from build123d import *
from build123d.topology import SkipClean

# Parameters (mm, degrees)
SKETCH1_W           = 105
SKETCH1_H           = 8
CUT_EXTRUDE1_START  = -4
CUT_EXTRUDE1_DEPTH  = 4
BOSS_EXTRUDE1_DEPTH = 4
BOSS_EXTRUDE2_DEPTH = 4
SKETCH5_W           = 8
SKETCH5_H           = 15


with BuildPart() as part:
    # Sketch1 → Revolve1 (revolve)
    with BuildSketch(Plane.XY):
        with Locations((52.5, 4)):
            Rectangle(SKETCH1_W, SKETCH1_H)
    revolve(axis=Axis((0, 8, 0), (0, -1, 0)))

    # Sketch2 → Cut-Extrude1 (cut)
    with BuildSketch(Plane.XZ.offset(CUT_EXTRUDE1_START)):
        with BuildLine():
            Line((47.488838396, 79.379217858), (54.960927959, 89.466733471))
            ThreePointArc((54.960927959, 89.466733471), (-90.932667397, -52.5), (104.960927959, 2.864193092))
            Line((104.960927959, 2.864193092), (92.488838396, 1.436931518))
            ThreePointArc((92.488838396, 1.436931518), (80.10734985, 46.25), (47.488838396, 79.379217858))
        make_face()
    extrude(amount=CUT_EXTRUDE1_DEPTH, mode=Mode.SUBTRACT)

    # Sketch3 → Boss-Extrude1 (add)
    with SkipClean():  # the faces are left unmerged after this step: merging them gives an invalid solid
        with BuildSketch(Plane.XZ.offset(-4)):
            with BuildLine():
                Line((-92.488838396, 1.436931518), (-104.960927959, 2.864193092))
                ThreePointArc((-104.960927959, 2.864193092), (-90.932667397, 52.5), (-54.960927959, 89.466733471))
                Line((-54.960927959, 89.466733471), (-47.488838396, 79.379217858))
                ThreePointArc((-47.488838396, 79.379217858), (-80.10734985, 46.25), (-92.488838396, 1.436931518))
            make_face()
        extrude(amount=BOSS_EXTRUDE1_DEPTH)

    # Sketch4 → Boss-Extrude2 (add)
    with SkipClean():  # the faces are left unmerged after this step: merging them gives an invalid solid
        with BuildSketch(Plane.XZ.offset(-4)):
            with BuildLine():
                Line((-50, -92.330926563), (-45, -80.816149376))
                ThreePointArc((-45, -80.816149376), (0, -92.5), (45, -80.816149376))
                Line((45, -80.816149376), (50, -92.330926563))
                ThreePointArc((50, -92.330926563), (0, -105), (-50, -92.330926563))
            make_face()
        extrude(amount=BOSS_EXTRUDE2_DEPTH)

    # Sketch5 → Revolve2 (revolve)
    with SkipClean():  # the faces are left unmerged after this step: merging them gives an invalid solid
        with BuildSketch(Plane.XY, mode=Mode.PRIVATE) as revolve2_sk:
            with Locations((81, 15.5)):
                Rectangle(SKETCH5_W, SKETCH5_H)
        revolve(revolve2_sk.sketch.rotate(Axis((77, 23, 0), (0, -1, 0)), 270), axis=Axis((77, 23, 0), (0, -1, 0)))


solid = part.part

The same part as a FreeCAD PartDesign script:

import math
import FreeCAD as App
import Part
import Sketcher
from FreeCAD import Vector
Q = App.Units.Quantity

doc = App.newDocument("Part")
body = doc.addObject("PartDesign::Body", "Body")

# Sketch on XY plane
sketch1 = doc.addObject("Sketcher::SketchObject", "Sketch")
body.addObject(sketch1)
sketch1.AttachmentSupport = (doc.XY_Plane, [""])
sketch1.MapMode = "FlatFace"
sketch1.addGeometry([
    Part.LineSegment(Vector(0, 8, 0), Vector(0, 0, 0)),
    Part.LineSegment(Vector(0, 0, 0), Vector(105, 0, 0)),
    Part.LineSegment(Vector(105, 0, 0), Vector(105, 8, 0)),
    Part.LineSegment(Vector(105, 8, 0), Vector(0, 8, 0)),
], False)
sketch1.addConstraint([
    Sketcher.Constraint("Coincident", 0, 2, 1, 1),
    Sketcher.Constraint("Coincident", 1, 2, 2, 1),
    Sketcher.Constraint("Coincident", 2, 2, 3, 1),
    Sketcher.Constraint("Coincident", 3, 2, 0, 1),
    Sketcher.Constraint("Vertical", 0),
    Sketcher.Constraint("Horizontal", 1),
    Sketcher.Constraint("Vertical", 2),
    Sketcher.Constraint("Horizontal", 3),
    Sketcher.Constraint("Coincident", 0, 2, -1, 1),
    Sketcher.Constraint("DistanceX", 1, 1, 1, 2, Q("105 mm")),
    Sketcher.Constraint("DistanceY", 0, 2, 0, 1, Q("8 mm")),
])
revolution = doc.addObject("PartDesign::Revolution", "Revolution")
body.addObject(revolution)
revolution.Profile = sketch1
revolution.ReferenceAxis = (sketch1, ["V_Axis"])
revolution.Angle = 360

# Sketch on XZ plane
sketch2 = doc.addObject("Sketcher::SketchObject", "Sketch001")
body.addObject(sketch2)
sketch2.AttachmentSupport = (doc.XZ_Plane, [""])
sketch2.MapMode = "FlatFace"
sketch2.AttachmentOffset = App.Placement(Vector(0, 0, -4), App.Rotation())
sketch2.addGeometry([
    Part.LineSegment(Vector(47, 79, 0), Vector(55, 89, 0)),
    Part.ArcOfCircle(Part.Circle(Vector(0, 0, 0), Vector(0, 0, 1), 105), math.radians(58), math.radians(362)),
    Part.LineSegment(Vector(105, 3, 0), Vector(92, 1, 0)),
    Part.ArcOfCircle(Part.Circle(Vector(0, 0, 0), Vector(0, 0, 1), 92), math.radians(1), math.radians(59)),
], False)
sketch2.addConstraint([
    Sketcher.Constraint("Coincident", 0, 2, 1, 1),
    Sketcher.Constraint("Coincident", 1, 2, 2, 1),
    Sketcher.Constraint("Coincident", 2, 2, 3, 1),
    Sketcher.Constraint("Coincident", 3, 2, 0, 1),
    Sketcher.Constraint("Coincident", 1, 3, -1, 1),
    Sketcher.Constraint("Coincident", 3, 3, -1, 1),
    Sketcher.Constraint("Equal", 0, 2),
    Sketcher.Constraint("Radius", 1, Q("105 mm")),
    Sketcher.Constraint("Radius", 3, Q("92.5 mm")),
    Sketcher.Constraint("DistanceX", 0, 2, 1, 2, Q("50 mm")),
    Sketcher.Constraint("DistanceX", 3, 2, 2, 2, Q("45 mm")),
    Sketcher.Constraint("DistanceY", 2, 2, 0, 2, Q("88.029802 mm")),
])
pocket1 = doc.addObject("PartDesign::Pocket", "Pocket")
body.addObject(pocket1)
pocket1.Profile = sketch2
pocket1.Length = 4
pocket1.Reversed = True

# Sketch on XZ plane
sketch3 = doc.addObject("Sketcher::SketchObject", "Sketch002")
body.addObject(sketch3)
sketch3.AttachmentSupport = (doc.XZ_Plane, [""])
sketch3.MapMode = "FlatFace"
sketch3.AttachmentOffset = App.Placement(Vector(0, 0, -4), App.Rotation())
sketch3.addGeometry([
    Part.LineSegment(Vector(-105, 3, 0), Vector(-92, 1, 0)),
    Part.ArcOfCircle(Part.Circle(Vector(0, 0, 0), Vector(0, 0, 1), 92), math.radians(121), math.radians(179)),
    Part.LineSegment(Vector(-47, 79, 0), Vector(-55, 89, 0)),
    Part.ArcOfCircle(Part.Circle(Vector(0, 0, 0), Vector(0, 0, 1), 105), math.radians(122), math.radians(178)),
], False)
sketch3.addConstraint([
    Sketcher.Constraint("Coincident", 0, 2, 1, 2),
    Sketcher.Constraint("Coincident", 1, 1, 2, 1),
    Sketcher.Constraint("Coincident", 2, 2, 3, 1),
    Sketcher.Constraint("Coincident", 3, 2, 0, 1),
    Sketcher.Constraint("Coincident", 1, 3, -1, 1),
    Sketcher.Constraint("Coincident", 3, 3, -1, 1),
    Sketcher.Constraint("Equal", 0, 2),
    Sketcher.Constraint("Radius", 3, Q("105 mm")),
    Sketcher.Constraint("Radius", 1, Q("92.5 mm")),
    Sketcher.Constraint("DistanceX", 0, 2, 1, 1, Q("45 mm")),
    Sketcher.Constraint("DistanceX", 3, 2, 2, 2, Q("50 mm")),
    Sketcher.Constraint("DistanceY", 0, 2, 2, 2, Q("88.029802 mm")),
])
pad1 = doc.addObject("PartDesign::Pad", "Pad")
body.addObject(pad1)
pad1.Profile = sketch3
pad1.Length = 4

# Sketch on XZ plane
sketch4 = doc.addObject("Sketcher::SketchObject", "Sketch003")
body.addObject(sketch4)
sketch4.AttachmentSupport = (doc.XZ_Plane, [""])
sketch4.MapMode = "FlatFace"
sketch4.AttachmentOffset = App.Placement(Vector(0, 0, -4), App.Rotation())
sketch4.addGeometry([
    Part.LineSegment(Vector(-45, -81, 0), Vector(-50, -92, 0)),
    Part.ArcOfCircle(Part.Circle(Vector(0, 0, 0), Vector(0, 0, 1), 105), math.radians(-118), math.radians(-62)),
    Part.LineSegment(Vector(50, -92, 0), Vector(45, -81, 0)),
    Part.ArcOfCircle(Part.Circle(Vector(0, 0, 0), Vector(0, 0, 1), 92), math.radians(-119), math.radians(-61)),
], False)
sketch4.addConstraint([
    Sketcher.Constraint("Coincident", 0, 2, 1, 1),
    Sketcher.Constraint("Coincident", 1, 2, 2, 1),
    Sketcher.Constraint("Coincident", 2, 2, 3, 2),
    Sketcher.Constraint("Coincident", 3, 1, 0, 1),
    Sketcher.Constraint("Coincident", 1, 3, -1, 1),
    Sketcher.Constraint("Coincident", 3, 3, -1, 1),
    Sketcher.Constraint("Horizontal", 0, 2, 1, 2),
    Sketcher.Constraint("Horizontal", 2, 2, 3, 1),
    Sketcher.Constraint("Radius", 1, Q("105 mm")),
    Sketcher.Constraint("Radius", 3, Q("92.5 mm")),
    Sketcher.Constraint("DistanceX", 0, 2, -1, 1, Q("50 mm")),
    Sketcher.Constraint("DistanceX", -1, 1, 2, 2, Q("45 mm")),
])
pad2 = doc.addObject("PartDesign::Pad", "Pad001")
body.addObject(pad2)
pad2.Profile = sketch4
pad2.Length = 4

# Sketch on XY plane
sketch5 = doc.addObject("Sketcher::SketchObject", "Sketch004")
body.addObject(sketch5)
sketch5.AttachmentSupport = (doc.XY_Plane, [""])
sketch5.MapMode = "FlatFace"
sketch5.addGeometry([
    Part.LineSegment(Vector(77, 23, 0), Vector(77, 8, 0)),
    Part.LineSegment(Vector(77, 8, 0), Vector(85, 8, 0)),
    Part.LineSegment(Vector(85, 8, 0), Vector(85, 23, 0)),
    Part.LineSegment(Vector(85, 23, 0), Vector(77, 23, 0)),
], False)
sketch5.addGeometry(Part.LineSegment(Vector(77, 23, 0), Vector(77, 8, 0)), True)  # axis
sketch5.addConstraint([
    Sketcher.Constraint("Coincident", 0, 2, 1, 1),
    Sketcher.Constraint("Coincident", 1, 2, 2, 1),
    Sketcher.Constraint("Coincident", 2, 2, 3, 1),
    Sketcher.Constraint("Coincident", 3, 2, 0, 1),
    Sketcher.Constraint("Vertical", 0),
    Sketcher.Constraint("Horizontal", 1),
    Sketcher.Constraint("Vertical", 2),
    Sketcher.Constraint("Horizontal", 3),
    Sketcher.Constraint("Vertical", 4),
    Sketcher.Constraint("Coincident", 4, 1, 3, 2),
    Sketcher.Constraint("Horizontal", 1, 2, 4, 2),
    Sketcher.Constraint("DistanceX", 1, 1, 1, 2, Q("8 mm")),
    Sketcher.Constraint("DistanceY", 0, 2, 0, 1, Q("15 mm")),
    Sketcher.Constraint("DistanceX", -1, 1, 0, 2, Q("77 mm")),
    Sketcher.Constraint("DistanceY", -1, 1, 0, 2, Q("8 mm")),
])
revolution2 = doc.addObject("PartDesign::Revolution", "Revolution001")
body.addObject(revolution2)
revolution2.Profile = sketch5
revolution2.ReferenceAxis = (sketch5, ["Axis0"])
revolution2.Angle = 360

doc.recompute()
